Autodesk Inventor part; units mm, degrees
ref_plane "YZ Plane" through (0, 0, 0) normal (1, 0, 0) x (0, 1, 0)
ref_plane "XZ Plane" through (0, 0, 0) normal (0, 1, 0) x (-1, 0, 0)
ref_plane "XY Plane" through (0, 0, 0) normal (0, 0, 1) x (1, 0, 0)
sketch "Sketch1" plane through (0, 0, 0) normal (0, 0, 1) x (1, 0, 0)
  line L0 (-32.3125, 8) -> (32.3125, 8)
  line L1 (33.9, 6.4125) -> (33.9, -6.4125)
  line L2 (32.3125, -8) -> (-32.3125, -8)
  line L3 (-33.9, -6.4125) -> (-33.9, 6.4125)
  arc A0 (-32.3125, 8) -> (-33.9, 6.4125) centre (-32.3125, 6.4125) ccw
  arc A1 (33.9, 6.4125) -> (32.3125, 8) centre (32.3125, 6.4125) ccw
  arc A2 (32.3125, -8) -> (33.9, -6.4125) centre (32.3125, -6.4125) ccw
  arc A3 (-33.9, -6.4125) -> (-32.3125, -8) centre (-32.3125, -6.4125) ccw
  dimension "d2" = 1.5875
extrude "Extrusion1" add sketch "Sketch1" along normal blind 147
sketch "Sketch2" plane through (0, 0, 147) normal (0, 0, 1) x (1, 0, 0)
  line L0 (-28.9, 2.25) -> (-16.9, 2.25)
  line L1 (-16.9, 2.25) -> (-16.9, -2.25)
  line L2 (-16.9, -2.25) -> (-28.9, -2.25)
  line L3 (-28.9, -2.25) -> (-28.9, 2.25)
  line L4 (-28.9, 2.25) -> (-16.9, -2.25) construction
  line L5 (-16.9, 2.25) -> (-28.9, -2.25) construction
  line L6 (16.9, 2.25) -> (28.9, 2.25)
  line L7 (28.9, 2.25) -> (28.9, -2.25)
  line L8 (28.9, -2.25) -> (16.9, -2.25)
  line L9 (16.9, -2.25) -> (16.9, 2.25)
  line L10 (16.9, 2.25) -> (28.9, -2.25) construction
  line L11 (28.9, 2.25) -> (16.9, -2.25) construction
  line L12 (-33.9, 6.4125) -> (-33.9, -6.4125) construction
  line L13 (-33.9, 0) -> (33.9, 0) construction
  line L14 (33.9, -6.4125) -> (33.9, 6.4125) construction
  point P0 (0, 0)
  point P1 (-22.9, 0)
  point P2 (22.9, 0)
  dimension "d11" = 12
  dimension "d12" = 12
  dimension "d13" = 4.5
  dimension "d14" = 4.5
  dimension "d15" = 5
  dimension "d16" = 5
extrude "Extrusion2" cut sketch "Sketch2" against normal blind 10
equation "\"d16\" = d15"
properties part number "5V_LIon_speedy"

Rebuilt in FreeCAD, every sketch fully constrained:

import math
import FreeCAD as App
import Part
import Sketcher

V = App.Vector

doc = App.newDocument("Part")
body = doc.addObject("PartDesign::Body", "Body")

sketch1 = body.newObject("Sketcher::SketchObject", "Sketch")
sketch1.AttachmentSupport = (doc.getObject("XY_Plane"), [""])
sketch1.MapMode = "FlatFace"
sketch1.addGeometry(Part.LineSegment(V(32.3125, 8, 0), V(-32.3125, 8, 0)), False)
sketch1.addGeometry(Part.ArcOfCircle(Part.Circle(V(-32.3125, 6.4125, 0), V(0, 0, 1), 1.5875), math.radians(90), math.radians(180)), False)
sketch1.addGeometry(Part.LineSegment(V(-33.9, 6.4125, 0), V(-33.9, -6.4125, 0)), False)
sketch1.addGeometry(Part.ArcOfCircle(Part.Circle(V(-32.3125, -6.4125, 0), V(0, 0, 1), 1.5875), math.radians(180), math.radians(270)), False)
sketch1.addGeometry(Part.LineSegment(V(-32.3125, -8, 0), V(32.3125, -8, 0)), False)
sketch1.addGeometry(Part.ArcOfCircle(Part.Circle(V(32.3125, -6.4125, 0), V(0, 0, 1), 1.5875), math.radians(-90), math.radians(0)), False)
sketch1.addGeometry(Part.LineSegment(V(33.9, -6.4125, 0), V(33.9, 6.4125, 0)), False)
sketch1.addGeometry(Part.ArcOfCircle(Part.Circle(V(32.3125, 6.4125, 0), V(0, 0, 1), 1.5875), math.radians(0), math.radians(90)), False)
sketch1.addConstraint(Sketcher.Constraint("Tangent", 0, 2, 1, 1))
sketch1.addConstraint(Sketcher.Constraint("Tangent", 1, 2, 2, 1))
sketch1.addConstraint(Sketcher.Constraint("Tangent", 2, 2, 3, 1))
sketch1.addConstraint(Sketcher.Constraint("Tangent", 3, 2, 4, 1))
sketch1.addConstraint(Sketcher.Constraint("Tangent", 4, 2, 5, 1))
sketch1.addConstraint(Sketcher.Constraint("Tangent", 5, 2, 6, 1))
sketch1.addConstraint(Sketcher.Constraint("Tangent", 6, 2, 7, 1))
sketch1.addConstraint(Sketcher.Constraint("Tangent", 7, 2, 0, 1))
sketch1.addConstraint(Sketcher.Constraint("Horizontal", 0))
sketch1.addConstraint(Sketcher.Constraint("Vertical", 2))
sketch1.addConstraint(Sketcher.Constraint("Horizontal", 4))
sketch1.addConstraint(Sketcher.Constraint("Vertical", 6))
sketch1.addConstraint(Sketcher.Constraint("Equal", 1, 3))
sketch1.addConstraint(Sketcher.Constraint("Equal", 3, 5))
sketch1.addConstraint(Sketcher.Constraint("Equal", 5, 7))
sketch1.addConstraint(Sketcher.Constraint("Symmetric", 1, 3, 5, 3, -1, 1))
sketch1.addConstraint(Sketcher.Constraint("Radius", 1, 1.5875))
sketch1.addConstraint(Sketcher.Constraint("DistanceY", -1, 1, 0, 2, 8.0))
sketch1.addConstraint(Sketcher.Constraint("DistanceX", 1, 2, -1, 1, 33.9))
pad1 = body.newObject("PartDesign::Pad", "Pad")
pad1.Profile = sketch1
pad1.Length = 147

sketch2 = body.newObject("Sketcher::SketchObject", "Sketch001")
sketch2.AttachmentSupport = (doc.getObject("XY_Plane"), [""])
sketch2.MapMode = "FlatFace"
sketch2.AttachmentOffset = App.Placement(V(0, 0, 147), App.Rotation())
sketch2.addGeometry(Part.LineSegment(V(-16.9, 2.25, 0), V(-28.9, 2.25, 0)), False)
sketch2.addGeometry(Part.LineSegment(V(-28.9, 2.25, 0), V(-28.9, -2.25, 0)), False)
sketch2.addGeometry(Part.LineSegment(V(-28.9, -2.25, 0), V(-16.9, -2.25, 0)), False)
sketch2.addGeometry(Part.LineSegment(V(-16.9, -2.25, 0), V(-16.9, 2.25, 0)), False)
sketch2.addGeometry(Part.LineSegment(V(28.9, 2.25, 0), V(16.9, 2.25, 0)), False)
sketch2.addGeometry(Part.LineSegment(V(16.9, 2.25, 0), V(16.9, -2.25, 0)), False)
sketch2.addGeometry(Part.LineSegment(V(16.9, -2.25, 0), V(28.9, -2.25, 0)), False)
sketch2.addGeometry(Part.LineSegment(V(28.9, -2.25, 0), V(28.9, 2.25, 0)), False)
sketch2.addConstraint(Sketcher.Constraint("Coincident", 0, 2, 1, 1))
sketch2.addConstraint(Sketcher.Constraint("Coincident", 1, 2, 2, 1))
sketch2.addConstraint(Sketcher.Constraint("Coincident", 2, 2, 3, 1))
sketch2.addConstraint(Sketcher.Constraint("Coincident", 3, 2, 0, 1))
sketch2.addConstraint(Sketcher.Constraint("Coincident", 4, 2, 5, 1))
sketch2.addConstraint(Sketcher.Constraint("Coincident", 5, 2, 6, 1))
sketch2.addConstraint(Sketcher.Constraint("Coincident", 6, 2, 7, 1))
sketch2.addConstraint(Sketcher.Constraint("Coincident", 7, 2, 4, 1))
sketch2.addConstraint(Sketcher.Constraint("Horizontal", 0))
sketch2.addConstraint(Sketcher.Constraint("Vertical", 1))
sketch2.addConstraint(Sketcher.Constraint("Horizontal", 2))
sketch2.addConstraint(Sketcher.Constraint("Vertical", 3))
sketch2.addConstraint(Sketcher.Constraint("Horizontal", 4))
sketch2.addConstraint(Sketcher.Constraint("Vertical", 5))
sketch2.addConstraint(Sketcher.Constraint("Horizontal", 6))
sketch2.addConstraint(Sketcher.Constraint("Vertical", 7))
sketch2.addConstraint(Sketcher.Constraint("Symmetric", 2, 2, 4, 2, -1, 1))
sketch2.addConstraint(Sketcher.Constraint("Symmetric", 0, 2, 6, 2, -1, 1))
sketch2.addConstraint(Sketcher.Constraint("Horizontal", 3, 2, 4, 2))
sketch2.addConstraint(Sketcher.Constraint("DistanceX", 0, 2, 0, 1, 12.0))
sketch2.addConstraint(Sketcher.Constraint("DistanceY", 1, 2, 1, 1, 4.5))
sketch2.addConstraint(Sketcher.Constraint("DistanceX", 0, 2, -1, 1, 28.9))
pocket1 = body.newObject("PartDesign::Pocket", "Pocket")
pocket1.Profile = sketch2
pocket1.Length = 10

doc.recompute()
